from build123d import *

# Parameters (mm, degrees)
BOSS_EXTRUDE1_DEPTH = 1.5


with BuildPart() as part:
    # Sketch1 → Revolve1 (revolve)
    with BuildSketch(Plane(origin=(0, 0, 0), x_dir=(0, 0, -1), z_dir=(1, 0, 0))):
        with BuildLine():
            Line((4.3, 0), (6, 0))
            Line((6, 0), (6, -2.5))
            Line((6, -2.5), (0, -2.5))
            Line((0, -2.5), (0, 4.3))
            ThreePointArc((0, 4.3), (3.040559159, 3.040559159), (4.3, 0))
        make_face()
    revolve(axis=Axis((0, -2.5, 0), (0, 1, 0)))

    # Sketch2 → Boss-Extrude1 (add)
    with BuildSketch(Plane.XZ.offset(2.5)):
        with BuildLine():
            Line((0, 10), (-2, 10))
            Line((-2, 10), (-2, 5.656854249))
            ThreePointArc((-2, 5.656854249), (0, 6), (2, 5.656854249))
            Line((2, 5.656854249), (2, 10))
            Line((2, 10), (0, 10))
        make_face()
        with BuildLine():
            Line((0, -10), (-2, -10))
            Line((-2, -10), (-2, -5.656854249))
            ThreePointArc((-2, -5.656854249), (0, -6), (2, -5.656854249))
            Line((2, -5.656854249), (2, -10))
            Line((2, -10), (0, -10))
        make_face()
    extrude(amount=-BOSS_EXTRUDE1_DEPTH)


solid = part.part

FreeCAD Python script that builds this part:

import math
import FreeCAD as App
import Part
import Sketcher

doc = App.newDocument("Part")
body = doc.addObject("PartDesign::Body", "Body")

# Sketch on YZ plane
sketch1 = doc.addObject("Sketcher::SketchObject", "Sketch")
body.addObject(sketch1)
sketch1.AttachmentSupport = (doc.YZ_Plane, [""])
sketch1.MapMode = "FlatFace"
sketch1.addGeometry([
    Part.LineSegment(App.Vector(0, -6, 0), App.Vector(0, -4.3, 0)),  # 0
    Part.ArcOfCircle(Part.Circle(App.Vector(0, 0, 0), App.Vector(0, 0, 1), 4.3), math.radians(-90), math.radians(0)),  # 1
    Part.LineSegment(App.Vector(4.3, 0, 0), App.Vector(-2.5, 0, 0)),  # 2
    Part.LineSegment(App.Vector(-2.5, 0, 0), App.Vector(-2.5, -6, 0)),  # 3
    Part.LineSegment(App.Vector(-2.5, -6, 0), App.Vector(0, -6, 0)),  # 4
], False)
sketch1.addConstraint([
    Sketcher.Constraint("Coincident", 0, 2, 1, 1),
    Sketcher.Constraint("Coincident", 1, 2, 2, 1),
    Sketcher.Constraint("Coincident", 2, 2, 3, 1),
    Sketcher.Constraint("Coincident", 3, 2, 4, 1),
    Sketcher.Constraint("Coincident", 4, 2, 0, 1),
    Sketcher.Constraint("Vertical", 0),
    Sketcher.Constraint("Horizontal", 2),
    Sketcher.Constraint("Vertical", 3),
    Sketcher.Constraint("Horizontal", 4),
    Sketcher.Constraint("Coincident", 1, 3, -1, 1),
    Sketcher.Constraint("PointOnObject", 0, 2, -2),
    Sketcher.Constraint("PointOnObject", 1, 2, -1),
    Sketcher.Constraint("Radius", 1, 4.3),
    Sketcher.Constraint("DistanceY", 3, 2, 3, 1, 6.0),
    Sketcher.Constraint("DistanceX", 2, 2, 2, 1, 6.8),
])
revolution = doc.addObject("PartDesign::Revolution", "Revolution")
body.addObject(revolution)
revolution.Profile = sketch1
revolution.ReferenceAxis = (sketch1, ["H_Axis"])
revolution.Angle = 360

# Sketch on XZ plane
sketch2 = doc.addObject("Sketcher::SketchObject", "Sketch001")
body.addObject(sketch2)
sketch2.AttachmentSupport = (doc.XZ_Plane, [""])
sketch2.MapMode = "FlatFace"
sketch2.AttachmentOffset = App.Placement(App.Vector(0, 0, 2.5), App.Rotation())
sketch2.addGeometry([
    Part.LineSegment(App.Vector(-2, 10, 0), App.Vector(-2, 5.7, 0)),  # 0
    Part.ArcOfCircle(Part.Circle(App.Vector(0, 0, 0), App.Vector(0, 0, 1), 6), math.radians(71), math.radians(109)),  # 1
    Part.LineSegment(App.Vector(2, 5.7, 0), App.Vector(2, 10, 0)),  # 2
    Part.LineSegment(App.Vector(2, 10, 0), App.Vector(-2, 10, 0)),  # 3
    Part.LineSegment(App.Vector(-2, -5.7, 0), App.Vector(-2, -10, 0)),  # 4
    Part.LineSegment(App.Vector(-2, -10, 0), App.Vector(2, -10, 0)),  # 5
    Part.LineSegment(App.Vector(2, -10, 0), App.Vector(2, -5.7, 0)),  # 6
    Part.ArcOfCircle(Part.Circle(App.Vector(0, 0, 0), App.Vector(0, 0, 1), 6), math.radians(-109), math.radians(-71)),  # 7
], False)
sketch2.addConstraint([
    Sketcher.Constraint("Coincident", 0, 2, 1, 2),
    Sketcher.Constraint("Coincident", 1, 1, 2, 1),
    Sketcher.Constraint("Coincident", 2, 2, 3, 1),
    Sketcher.Constraint("Coincident", 3, 2, 0, 1),
    Sketcher.Constraint("Coincident", 4, 2, 5, 1),
    Sketcher.Constraint("Coincident", 5, 2, 6, 1),
    Sketcher.Constraint("Coincident", 6, 2, 7, 2),
    Sketcher.Constraint("Coincident", 7, 1, 4, 1),
    Sketcher.Constraint("Vertical", 0),
    Sketcher.Constraint("Vertical", 2),
    Sketcher.Constraint("Horizontal", 3),
    Sketcher.Constraint("Vertical", 4),
    Sketcher.Constraint("Horizontal", 5),
    Sketcher.Constraint("Vertical", 6),
    Sketcher.Constraint("Coincident", 1, 3, -1, 1),
    Sketcher.Constraint("Coincident", 7, 3, -1, 1),
    Sketcher.Constraint("Equal", 1, 7),
    Sketcher.Constraint("Symmetric", 2, 2, 4, 2, -1, 1),
    Sketcher.Constraint("Horizontal", 0, 2, 1, 1),
    Sketcher.Constraint("Horizontal", 6, 2, 7, 1),
    Sketcher.Constraint("Radius", 1, 6.0),
    Sketcher.Constraint("DistanceX", 3, 2, 3, 1, 4.0),
    Sketcher.Constraint("DistanceY", -1, 1, 2, 2, 10.0),
])
pad1 = doc.addObject("PartDesign::Pad", "Pad")
body.addObject(pad1)
pad1.Profile = sketch2
pad1.Length = 1.5
pad1.Reversed = True

doc.recompute()
